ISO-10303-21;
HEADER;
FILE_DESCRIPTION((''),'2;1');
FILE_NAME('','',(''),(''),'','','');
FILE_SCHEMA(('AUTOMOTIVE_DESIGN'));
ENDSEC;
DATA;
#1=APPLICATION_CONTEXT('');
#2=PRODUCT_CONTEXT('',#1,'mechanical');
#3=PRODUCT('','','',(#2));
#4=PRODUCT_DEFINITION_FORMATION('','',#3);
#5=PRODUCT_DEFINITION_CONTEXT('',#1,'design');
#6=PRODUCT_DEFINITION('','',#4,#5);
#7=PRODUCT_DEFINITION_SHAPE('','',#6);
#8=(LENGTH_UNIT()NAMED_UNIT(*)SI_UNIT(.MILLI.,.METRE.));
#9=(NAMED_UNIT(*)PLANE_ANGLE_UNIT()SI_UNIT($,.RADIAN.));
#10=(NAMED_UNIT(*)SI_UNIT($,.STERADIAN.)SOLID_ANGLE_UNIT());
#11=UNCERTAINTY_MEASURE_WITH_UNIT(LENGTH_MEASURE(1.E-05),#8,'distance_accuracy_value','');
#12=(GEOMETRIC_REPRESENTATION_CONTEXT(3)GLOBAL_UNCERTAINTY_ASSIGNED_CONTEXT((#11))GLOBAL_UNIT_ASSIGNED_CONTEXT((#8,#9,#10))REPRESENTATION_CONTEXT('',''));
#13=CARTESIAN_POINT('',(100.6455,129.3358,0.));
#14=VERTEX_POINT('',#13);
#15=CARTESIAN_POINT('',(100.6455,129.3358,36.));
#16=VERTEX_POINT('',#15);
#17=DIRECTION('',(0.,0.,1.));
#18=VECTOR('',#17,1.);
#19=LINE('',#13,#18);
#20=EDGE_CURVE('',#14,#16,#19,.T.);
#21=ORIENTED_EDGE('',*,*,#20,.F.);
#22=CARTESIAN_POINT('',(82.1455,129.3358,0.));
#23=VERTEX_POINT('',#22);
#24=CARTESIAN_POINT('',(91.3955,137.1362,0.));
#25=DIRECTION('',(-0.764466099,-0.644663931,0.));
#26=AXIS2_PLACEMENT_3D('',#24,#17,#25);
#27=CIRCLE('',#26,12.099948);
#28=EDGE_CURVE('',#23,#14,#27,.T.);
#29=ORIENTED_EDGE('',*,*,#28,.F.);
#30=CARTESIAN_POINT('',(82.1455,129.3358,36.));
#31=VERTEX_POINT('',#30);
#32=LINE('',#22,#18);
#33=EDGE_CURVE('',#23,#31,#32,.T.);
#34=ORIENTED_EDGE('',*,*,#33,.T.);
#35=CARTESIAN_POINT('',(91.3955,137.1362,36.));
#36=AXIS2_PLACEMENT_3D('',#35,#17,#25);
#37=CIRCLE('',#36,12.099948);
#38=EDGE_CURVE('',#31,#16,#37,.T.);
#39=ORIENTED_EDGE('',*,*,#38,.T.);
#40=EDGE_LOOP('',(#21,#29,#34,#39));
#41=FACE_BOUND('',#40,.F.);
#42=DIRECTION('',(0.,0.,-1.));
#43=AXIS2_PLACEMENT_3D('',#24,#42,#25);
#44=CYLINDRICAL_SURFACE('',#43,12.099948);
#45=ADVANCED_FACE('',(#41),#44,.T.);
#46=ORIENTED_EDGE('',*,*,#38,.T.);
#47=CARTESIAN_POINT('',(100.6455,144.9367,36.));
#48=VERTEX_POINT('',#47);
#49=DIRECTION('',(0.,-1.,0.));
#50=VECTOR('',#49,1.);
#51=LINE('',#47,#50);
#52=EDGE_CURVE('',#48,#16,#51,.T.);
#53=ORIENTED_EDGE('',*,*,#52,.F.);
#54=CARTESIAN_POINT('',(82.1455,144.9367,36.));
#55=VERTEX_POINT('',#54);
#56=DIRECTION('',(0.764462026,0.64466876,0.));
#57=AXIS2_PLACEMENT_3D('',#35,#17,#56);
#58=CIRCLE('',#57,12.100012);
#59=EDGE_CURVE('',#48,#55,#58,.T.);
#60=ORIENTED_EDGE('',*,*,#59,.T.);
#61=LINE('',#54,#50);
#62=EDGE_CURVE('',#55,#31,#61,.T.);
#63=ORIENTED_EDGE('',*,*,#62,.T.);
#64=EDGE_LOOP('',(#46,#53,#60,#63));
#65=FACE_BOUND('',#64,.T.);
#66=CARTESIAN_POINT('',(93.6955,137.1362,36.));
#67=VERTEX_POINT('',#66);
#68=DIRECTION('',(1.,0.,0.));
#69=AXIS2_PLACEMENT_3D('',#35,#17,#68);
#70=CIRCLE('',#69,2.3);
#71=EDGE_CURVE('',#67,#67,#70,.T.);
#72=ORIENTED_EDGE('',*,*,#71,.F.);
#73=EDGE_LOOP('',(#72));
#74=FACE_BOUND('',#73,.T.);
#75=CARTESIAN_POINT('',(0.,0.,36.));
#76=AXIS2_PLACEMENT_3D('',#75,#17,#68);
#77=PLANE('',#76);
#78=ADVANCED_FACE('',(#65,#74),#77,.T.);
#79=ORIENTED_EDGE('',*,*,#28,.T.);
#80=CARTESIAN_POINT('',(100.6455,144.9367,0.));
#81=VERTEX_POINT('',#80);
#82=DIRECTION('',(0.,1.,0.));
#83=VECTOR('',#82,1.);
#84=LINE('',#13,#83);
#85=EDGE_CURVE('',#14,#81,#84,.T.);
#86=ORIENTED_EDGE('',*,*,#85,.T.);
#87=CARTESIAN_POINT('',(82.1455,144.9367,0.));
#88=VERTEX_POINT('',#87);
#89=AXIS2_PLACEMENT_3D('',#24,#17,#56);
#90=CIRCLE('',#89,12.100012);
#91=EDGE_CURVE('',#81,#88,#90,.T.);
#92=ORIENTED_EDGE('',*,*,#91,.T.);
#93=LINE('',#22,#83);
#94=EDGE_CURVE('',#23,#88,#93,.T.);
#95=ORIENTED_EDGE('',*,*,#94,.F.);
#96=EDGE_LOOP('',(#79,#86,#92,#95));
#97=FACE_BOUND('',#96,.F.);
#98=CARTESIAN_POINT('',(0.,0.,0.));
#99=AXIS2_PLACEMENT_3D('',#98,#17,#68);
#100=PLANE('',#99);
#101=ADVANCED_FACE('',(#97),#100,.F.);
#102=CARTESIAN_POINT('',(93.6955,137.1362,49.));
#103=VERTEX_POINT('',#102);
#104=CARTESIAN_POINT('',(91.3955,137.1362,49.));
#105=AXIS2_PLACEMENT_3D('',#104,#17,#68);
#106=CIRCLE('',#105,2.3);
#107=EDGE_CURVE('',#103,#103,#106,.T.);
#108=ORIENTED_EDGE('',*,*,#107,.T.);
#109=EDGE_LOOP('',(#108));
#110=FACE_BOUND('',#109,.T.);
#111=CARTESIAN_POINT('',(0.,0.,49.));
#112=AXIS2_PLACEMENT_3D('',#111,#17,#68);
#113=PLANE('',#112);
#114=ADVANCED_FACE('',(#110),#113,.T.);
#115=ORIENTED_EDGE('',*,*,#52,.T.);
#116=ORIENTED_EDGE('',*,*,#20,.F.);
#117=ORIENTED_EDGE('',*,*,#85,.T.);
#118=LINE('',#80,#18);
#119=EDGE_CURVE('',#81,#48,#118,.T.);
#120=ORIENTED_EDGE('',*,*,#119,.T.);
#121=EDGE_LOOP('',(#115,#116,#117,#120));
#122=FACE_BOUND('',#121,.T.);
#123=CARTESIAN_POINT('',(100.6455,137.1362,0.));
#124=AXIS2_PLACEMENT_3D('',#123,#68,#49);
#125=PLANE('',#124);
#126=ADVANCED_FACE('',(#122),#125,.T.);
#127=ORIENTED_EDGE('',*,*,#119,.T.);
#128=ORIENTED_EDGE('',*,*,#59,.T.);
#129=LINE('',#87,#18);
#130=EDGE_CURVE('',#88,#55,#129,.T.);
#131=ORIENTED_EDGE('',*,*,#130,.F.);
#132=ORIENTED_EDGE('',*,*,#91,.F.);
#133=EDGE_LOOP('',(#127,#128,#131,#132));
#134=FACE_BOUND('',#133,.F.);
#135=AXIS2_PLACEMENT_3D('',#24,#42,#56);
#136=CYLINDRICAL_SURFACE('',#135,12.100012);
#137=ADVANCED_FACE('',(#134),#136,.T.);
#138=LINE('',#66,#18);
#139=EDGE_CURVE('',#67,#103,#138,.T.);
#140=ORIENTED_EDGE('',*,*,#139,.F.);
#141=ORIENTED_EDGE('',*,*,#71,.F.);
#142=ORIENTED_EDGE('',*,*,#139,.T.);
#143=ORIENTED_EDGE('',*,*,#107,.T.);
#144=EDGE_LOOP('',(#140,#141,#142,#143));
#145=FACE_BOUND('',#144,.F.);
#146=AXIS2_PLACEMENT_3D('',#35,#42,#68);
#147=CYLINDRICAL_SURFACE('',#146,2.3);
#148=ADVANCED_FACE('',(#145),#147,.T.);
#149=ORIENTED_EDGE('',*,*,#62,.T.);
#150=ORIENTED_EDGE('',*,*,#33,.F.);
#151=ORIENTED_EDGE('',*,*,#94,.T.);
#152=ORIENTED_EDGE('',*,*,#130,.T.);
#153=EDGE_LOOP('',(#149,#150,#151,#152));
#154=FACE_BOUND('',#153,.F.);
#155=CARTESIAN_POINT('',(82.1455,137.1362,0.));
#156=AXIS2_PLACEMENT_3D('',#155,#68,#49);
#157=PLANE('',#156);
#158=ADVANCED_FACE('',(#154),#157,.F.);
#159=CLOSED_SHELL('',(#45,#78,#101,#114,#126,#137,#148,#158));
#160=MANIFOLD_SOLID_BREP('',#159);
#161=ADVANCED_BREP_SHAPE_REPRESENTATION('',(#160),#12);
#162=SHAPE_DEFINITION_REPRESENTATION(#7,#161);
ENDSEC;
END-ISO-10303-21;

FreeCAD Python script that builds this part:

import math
import FreeCAD as App
import Part
import Sketcher
from FreeCAD import Vector
Q = App.Units.Quantity

doc = App.newDocument("Part")
body = doc.addObject("PartDesign::Body", "Body")

sketch1 = body.newObject("Sketcher::SketchObject", "Sketch")
sketch1.AttachmentSupport = (doc.getObject("XY_Plane"), [""])
sketch1.MapMode = "FlatFace"
sketch1.addGeometry([
    Part.LineSegment(Vector(100.6455, 129.3358, 0), Vector(100.6455, 144.9367, 0)),
    Part.ArcOfCircle(Part.Circle(Vector(91.3955, 137.1362, 0), Vector(0, 0, 1), 12.100012), math.radians(40.140845), math.radians(139.859155)),
    Part.LineSegment(Vector(82.1455, 144.9367, 0), Vector(82.1455, 129.3358, 0)),
    Part.ArcOfCircle(Part.Circle(Vector(91.3955, 137.1362, 0), Vector(0, 0, 1), 12.099948), math.radians(-139.859517), math.radians(-40.140483)),
], False)
sketch1.addConstraint([
    Sketcher.Constraint("Coincident", 0, 2, 1, 1),
    Sketcher.Constraint("Coincident", 1, 2, 2, 1),
    Sketcher.Constraint("Coincident", 2, 2, 3, 1),
    Sketcher.Constraint("Coincident", 3, 2, 0, 1),
    Sketcher.Constraint("Vertical", 0),
    Sketcher.Constraint("Vertical", 2),
    Sketcher.Constraint("Coincident", 3, 3, 1, 3),
    Sketcher.Constraint("Equal", 1, 3),
    Sketcher.Constraint("Horizontal", 0, 2, 1, 2),
    Sketcher.Constraint("Radius", 1, Q("12.1 mm")),
    Sketcher.Constraint("DistanceX", 1, 3, 0, 2, Q("9.25 mm")),
    Sketcher.Constraint("DistanceX", -1, 1, 1, 3, Q("91.3955 mm")),
    Sketcher.Constraint("DistanceY", -1, 1, 1, 3, Q("137.1362 mm")),
])
pad1 = body.newObject("PartDesign::Pad", "Pad")
pad1.Profile = sketch1
pad1.Length = 36

sketch2 = body.newObject("Sketcher::SketchObject", "Sketch001")
sketch2.AttachmentSupport = (doc.getObject("XY_Plane"), [""])
sketch2.MapMode = "FlatFace"
sketch2.AttachmentOffset = App.Placement(Vector(0, 0, 36), App.Rotation())
sketch2.addGeometry(Part.Circle(Vector(91.3955, 137.1362, 0), Vector(0, 0, 1), 2.3), False)
sketch2.addConstraint([
    Sketcher.Constraint("Diameter", 0, Q("4.6 mm")),
    Sketcher.Constraint("DistanceX", -1, 1, 0, 3, Q("91.3955 mm")),
    Sketcher.Constraint("DistanceY", -1, 1, 0, 3, Q("137.1362 mm")),
])
pad2 = body.newObject("PartDesign::Pad", "Pad001")
pad2.Profile = sketch2
pad2.Length = 13

doc.recompute()
